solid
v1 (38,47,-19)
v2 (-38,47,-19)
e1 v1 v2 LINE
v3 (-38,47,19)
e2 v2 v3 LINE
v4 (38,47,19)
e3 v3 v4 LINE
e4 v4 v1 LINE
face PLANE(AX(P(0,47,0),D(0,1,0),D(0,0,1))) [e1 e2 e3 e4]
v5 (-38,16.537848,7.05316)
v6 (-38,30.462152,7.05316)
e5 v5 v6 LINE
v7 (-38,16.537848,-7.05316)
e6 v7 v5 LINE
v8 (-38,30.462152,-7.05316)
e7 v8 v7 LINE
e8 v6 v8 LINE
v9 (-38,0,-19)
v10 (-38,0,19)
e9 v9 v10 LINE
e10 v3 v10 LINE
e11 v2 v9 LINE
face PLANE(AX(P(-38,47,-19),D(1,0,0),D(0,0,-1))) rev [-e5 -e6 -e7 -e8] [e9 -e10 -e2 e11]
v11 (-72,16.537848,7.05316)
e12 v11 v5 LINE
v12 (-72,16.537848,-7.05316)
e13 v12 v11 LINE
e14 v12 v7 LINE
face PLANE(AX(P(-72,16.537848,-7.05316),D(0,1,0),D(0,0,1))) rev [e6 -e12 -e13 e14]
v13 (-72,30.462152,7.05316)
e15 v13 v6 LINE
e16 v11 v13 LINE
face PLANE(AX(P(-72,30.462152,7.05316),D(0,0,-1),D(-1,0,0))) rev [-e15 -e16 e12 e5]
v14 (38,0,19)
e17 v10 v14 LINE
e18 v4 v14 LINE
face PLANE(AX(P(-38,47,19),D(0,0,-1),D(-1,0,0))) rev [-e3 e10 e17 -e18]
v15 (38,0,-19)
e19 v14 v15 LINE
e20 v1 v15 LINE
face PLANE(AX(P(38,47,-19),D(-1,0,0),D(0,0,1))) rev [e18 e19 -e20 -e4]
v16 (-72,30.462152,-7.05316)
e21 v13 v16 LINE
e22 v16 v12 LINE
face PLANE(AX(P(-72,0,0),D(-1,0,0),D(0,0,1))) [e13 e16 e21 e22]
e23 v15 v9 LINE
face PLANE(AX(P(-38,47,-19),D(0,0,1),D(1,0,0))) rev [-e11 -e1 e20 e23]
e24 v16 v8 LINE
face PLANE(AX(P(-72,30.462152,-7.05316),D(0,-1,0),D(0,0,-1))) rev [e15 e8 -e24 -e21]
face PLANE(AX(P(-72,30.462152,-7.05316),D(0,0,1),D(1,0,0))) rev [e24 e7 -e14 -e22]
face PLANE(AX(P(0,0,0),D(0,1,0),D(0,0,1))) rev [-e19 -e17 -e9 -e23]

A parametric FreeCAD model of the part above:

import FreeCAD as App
import Part
import Sketcher

V = App.Vector
Q = App.Units.Quantity

doc = App.newDocument("Part")
params = doc.addObject("Spreadsheet::Sheet", "Params")
for row, (alias, value) in enumerate([
    ("sketch1_width", "76 mm"),
    ("sketch1_height", "38 mm"),
    ("pad1_length", "47 mm"),
    ("pad2_length", "34 mm"),
], start=1):
    params.set(f"A{row}", alias)
    params.set(f"B{row}", "=" + value)
    params.setAlias(f"B{row}", alias)

body = doc.addObject("PartDesign::Body", "Body")

# Sketch on XZ plane
sketch1 = body.newObject("Sketcher::SketchObject", "Sketch")
sketch1.AttachmentSupport = (doc.getObject("XZ_Plane"), [""])
sketch1.MapMode = "FlatFace"
sketch1.addGeometry(Part.LineSegment(V(-38, -19, 0), V(-38, 19, 0)), False)
sketch1.addGeometry(Part.LineSegment(V(-38, 19, 0), V(38, 19, 0)), False)
sketch1.addGeometry(Part.LineSegment(V(38, 19, 0), V(38, -19, 0)), False)
sketch1.addGeometry(Part.LineSegment(V(38, -19, 0), V(-38, -19, 0)), False)
sketch1.addConstraint(Sketcher.Constraint("Coincident", 0, 2, 1, 1))
sketch1.addConstraint(Sketcher.Constraint("Coincident", 1, 2, 2, 1))
sketch1.addConstraint(Sketcher.Constraint("Coincident", 2, 2, 3, 1))
sketch1.addConstraint(Sketcher.Constraint("Coincident", 3, 2, 0, 1))
sketch1.addConstraint(Sketcher.Constraint("Vertical", 0))
sketch1.addConstraint(Sketcher.Constraint("Horizontal", 1))
sketch1.addConstraint(Sketcher.Constraint("Vertical", 2))
sketch1.addConstraint(Sketcher.Constraint("Horizontal", 3))
sketch1.addConstraint(Sketcher.Constraint("Symmetric", 0, 2, 2, 2, -1, 1))
sketch1.addConstraint(Sketcher.Constraint("DistanceX", 1, 1, 1, 2, Q("76 mm")))
sketch1.addConstraint(Sketcher.Constraint("DistanceY", 0, 1, 0, 2, Q("38 mm")))
sketch1.setExpression("Constraints[9]", "Params.sketch1_width")
sketch1.setExpression("Constraints[10]", "Params.sketch1_height")
pad1 = body.newObject("PartDesign::Pad", "Pad")
pad1.Profile = sketch1
pad1.setExpression("Length", "Params.pad1_length")
pad1.Reversed = True

# Sketch on YZ plane
sketch2 = body.newObject("Sketcher::SketchObject", "Sketch001")
sketch2.AttachmentSupport = (doc.getObject("YZ_Plane"), [""])
sketch2.MapMode = "FlatFace"
sketch2.AttachmentOffset = App.Placement(V(0, 0, -38), App.Rotation())
sketch2.addGeometry(Part.LineSegment(V(30, -7, 0), V(17, -7, 0)), False)
sketch2.addGeometry(Part.LineSegment(V(17, -7, 0), V(17, 7, 0)), False)
sketch2.addGeometry(Part.LineSegment(V(17, 7, 0), V(30, 7, 0)), False)
sketch2.addGeometry(Part.LineSegment(V(30, 7, 0), V(30, -7, 0)), False)
sketch2.addConstraint(Sketcher.Constraint("Coincident", 0, 2, 1, 1))
sketch2.addConstraint(Sketcher.Constraint("Coincident", 1, 2, 2, 1))
sketch2.addConstraint(Sketcher.Constraint("Coincident", 2, 2, 3, 1))
sketch2.addConstraint(Sketcher.Constraint("Coincident", 3, 2, 0, 1))
sketch2.addConstraint(Sketcher.Constraint("Horizontal", 0))
sketch2.addConstraint(Sketcher.Constraint("Vertical", 1))
sketch2.addConstraint(Sketcher.Constraint("Horizontal", 2))
sketch2.addConstraint(Sketcher.Constraint("Vertical", 3))
sketch2.addConstraint(Sketcher.Constraint("DistanceY", 1, 1, 1, 2, Q("14.10632 mm")))
sketch2.addConstraint(Sketcher.Constraint("DistanceX", 0, 2, 0, 1, Q("13.924303 mm")))
sketch2.addConstraint(Sketcher.Constraint("DistanceX", -1, 1, 0, 2, Q("16.537848 mm")))
sketch2.addConstraint(Sketcher.Constraint("DistanceY", 0, 2, -1, 1, Q("7.05316 mm")))
pad2 = body.newObject("PartDesign::Pad", "Pad001")
pad2.Profile = sketch2
pad2.setExpression("Length", "Params.pad2_length")
pad2.Reversed = True

doc.recompute()
